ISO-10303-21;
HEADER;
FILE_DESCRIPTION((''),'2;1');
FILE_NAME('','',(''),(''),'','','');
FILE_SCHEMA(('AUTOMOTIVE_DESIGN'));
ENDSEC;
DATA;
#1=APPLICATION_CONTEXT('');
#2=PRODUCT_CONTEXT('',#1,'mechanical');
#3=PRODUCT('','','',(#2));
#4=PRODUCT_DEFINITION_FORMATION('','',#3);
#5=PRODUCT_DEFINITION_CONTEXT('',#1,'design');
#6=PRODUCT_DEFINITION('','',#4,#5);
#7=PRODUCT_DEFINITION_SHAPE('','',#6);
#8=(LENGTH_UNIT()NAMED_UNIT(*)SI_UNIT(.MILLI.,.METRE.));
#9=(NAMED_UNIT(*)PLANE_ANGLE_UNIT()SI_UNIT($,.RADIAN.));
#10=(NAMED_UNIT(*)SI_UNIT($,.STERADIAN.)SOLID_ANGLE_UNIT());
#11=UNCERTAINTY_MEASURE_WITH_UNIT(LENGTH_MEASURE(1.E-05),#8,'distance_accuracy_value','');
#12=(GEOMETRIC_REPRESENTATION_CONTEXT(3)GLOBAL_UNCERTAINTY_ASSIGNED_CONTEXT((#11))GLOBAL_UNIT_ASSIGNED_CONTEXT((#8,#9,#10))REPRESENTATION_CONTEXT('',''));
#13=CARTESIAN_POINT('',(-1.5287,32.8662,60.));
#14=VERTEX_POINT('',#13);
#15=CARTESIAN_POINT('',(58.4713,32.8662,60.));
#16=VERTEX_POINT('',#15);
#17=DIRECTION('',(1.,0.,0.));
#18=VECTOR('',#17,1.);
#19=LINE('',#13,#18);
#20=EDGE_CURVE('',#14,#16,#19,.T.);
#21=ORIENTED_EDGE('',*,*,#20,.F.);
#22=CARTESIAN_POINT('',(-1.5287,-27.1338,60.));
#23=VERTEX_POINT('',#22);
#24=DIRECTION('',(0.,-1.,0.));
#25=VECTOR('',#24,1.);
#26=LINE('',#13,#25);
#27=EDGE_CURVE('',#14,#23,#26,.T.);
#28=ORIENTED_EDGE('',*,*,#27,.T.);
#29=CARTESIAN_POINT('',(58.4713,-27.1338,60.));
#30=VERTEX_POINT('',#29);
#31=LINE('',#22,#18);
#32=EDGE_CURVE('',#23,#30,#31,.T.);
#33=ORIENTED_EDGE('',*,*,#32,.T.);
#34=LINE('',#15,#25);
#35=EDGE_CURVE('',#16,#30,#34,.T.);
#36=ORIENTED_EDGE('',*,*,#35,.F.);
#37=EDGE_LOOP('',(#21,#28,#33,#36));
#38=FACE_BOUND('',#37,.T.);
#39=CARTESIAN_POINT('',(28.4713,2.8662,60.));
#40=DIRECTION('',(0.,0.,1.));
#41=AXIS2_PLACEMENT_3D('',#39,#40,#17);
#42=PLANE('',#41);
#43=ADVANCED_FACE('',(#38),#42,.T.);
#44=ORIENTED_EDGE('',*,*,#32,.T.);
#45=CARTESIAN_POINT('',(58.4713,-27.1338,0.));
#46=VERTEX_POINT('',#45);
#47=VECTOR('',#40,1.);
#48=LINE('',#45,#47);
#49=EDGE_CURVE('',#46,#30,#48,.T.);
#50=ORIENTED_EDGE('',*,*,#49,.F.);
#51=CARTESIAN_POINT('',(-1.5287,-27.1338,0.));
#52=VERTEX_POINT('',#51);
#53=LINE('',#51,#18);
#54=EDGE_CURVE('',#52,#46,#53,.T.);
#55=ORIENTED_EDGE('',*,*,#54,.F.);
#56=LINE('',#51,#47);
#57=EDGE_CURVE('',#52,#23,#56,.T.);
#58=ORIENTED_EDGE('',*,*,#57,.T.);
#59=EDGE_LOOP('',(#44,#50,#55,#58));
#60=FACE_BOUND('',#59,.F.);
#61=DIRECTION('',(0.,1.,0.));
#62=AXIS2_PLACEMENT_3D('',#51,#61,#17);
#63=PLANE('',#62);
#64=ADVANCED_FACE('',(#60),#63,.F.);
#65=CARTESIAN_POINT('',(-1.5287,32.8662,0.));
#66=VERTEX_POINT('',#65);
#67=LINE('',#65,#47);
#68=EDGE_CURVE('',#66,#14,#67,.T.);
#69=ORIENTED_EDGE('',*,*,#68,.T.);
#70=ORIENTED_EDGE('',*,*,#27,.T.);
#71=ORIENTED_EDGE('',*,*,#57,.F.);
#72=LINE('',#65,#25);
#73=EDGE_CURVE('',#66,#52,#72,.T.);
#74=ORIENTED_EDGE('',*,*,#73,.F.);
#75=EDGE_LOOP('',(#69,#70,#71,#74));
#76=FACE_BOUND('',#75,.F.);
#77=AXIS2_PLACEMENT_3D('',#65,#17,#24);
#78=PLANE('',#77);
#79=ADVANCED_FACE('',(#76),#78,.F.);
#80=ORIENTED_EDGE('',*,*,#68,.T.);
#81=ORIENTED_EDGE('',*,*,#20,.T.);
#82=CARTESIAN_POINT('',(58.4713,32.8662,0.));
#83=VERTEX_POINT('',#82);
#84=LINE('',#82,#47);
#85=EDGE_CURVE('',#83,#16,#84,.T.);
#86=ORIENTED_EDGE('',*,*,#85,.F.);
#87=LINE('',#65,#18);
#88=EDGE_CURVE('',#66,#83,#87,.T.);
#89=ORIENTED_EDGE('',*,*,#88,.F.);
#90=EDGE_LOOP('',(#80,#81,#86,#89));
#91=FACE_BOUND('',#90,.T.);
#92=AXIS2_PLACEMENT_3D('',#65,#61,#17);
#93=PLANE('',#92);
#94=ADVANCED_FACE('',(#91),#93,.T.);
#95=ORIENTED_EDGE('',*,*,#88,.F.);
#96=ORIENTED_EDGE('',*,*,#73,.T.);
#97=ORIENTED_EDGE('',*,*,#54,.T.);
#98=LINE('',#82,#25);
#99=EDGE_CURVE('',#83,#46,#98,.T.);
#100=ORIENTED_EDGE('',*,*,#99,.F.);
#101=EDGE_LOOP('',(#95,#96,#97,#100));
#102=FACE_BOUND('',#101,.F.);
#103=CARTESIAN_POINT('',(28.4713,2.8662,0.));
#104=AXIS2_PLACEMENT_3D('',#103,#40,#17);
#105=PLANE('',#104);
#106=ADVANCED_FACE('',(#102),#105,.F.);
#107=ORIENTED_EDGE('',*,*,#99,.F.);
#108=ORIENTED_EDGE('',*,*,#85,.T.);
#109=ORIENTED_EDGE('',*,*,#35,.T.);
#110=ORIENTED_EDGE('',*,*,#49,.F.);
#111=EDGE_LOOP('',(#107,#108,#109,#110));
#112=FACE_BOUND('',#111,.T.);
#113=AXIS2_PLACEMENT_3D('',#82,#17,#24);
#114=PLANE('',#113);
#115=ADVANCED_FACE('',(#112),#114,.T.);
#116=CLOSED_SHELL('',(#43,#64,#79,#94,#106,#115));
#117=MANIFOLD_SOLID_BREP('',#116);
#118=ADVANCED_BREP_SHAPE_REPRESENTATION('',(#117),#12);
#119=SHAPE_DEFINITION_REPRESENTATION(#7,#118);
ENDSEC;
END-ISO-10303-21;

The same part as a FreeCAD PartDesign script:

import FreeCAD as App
import Part
import Sketcher
from FreeCAD import Vector


def add_polygon(sketch, points):
    """Adds a closed chain of lines whose ends are joined by coincident constraints."""
    first, n = sketch.GeometryCount, len(points)
    for a, b in zip(points, points[1:] + points[:1]):
        sketch.addGeometry(Part.LineSegment(App.Vector(*a, 0), App.Vector(*b, 0)), False)
    for i in range(n):
        sketch.addConstraint(Sketcher.Constraint("Coincident", first + i, 2, first + (i + 1) % n, 1))

doc = App.newDocument("Part")
params = doc.addObject("Spreadsheet::Sheet", "Params")
for row, (alias, value) in enumerate([
    ("sketch1_width", "60 mm"),
    ("pad1_length", "60 mm"),
], start=1):
    params.set(f"A{row}", alias)
    params.set(f"B{row}", "=" + value)
    params.setAlias(f"B{row}", alias)

body = doc.addObject("PartDesign::Body", "Body")

sketch1 = body.newObject("Sketcher::SketchObject", "Sketch")
sketch1.AttachmentSupport = (doc.getObject("XY_Plane"), [""])
sketch1.MapMode = "FlatFace"
add_polygon(sketch1, [(58.4713, 32.8662), (-1.5287, 32.8662), (-1.5287, -27.1338), (58.4713, -27.1338)])
sketch1.addConstraint([
    Sketcher.Constraint("Horizontal", 0),
    Sketcher.Constraint("Vertical", 1),
    Sketcher.Constraint("Horizontal", 2),
    Sketcher.Constraint("Vertical", 3),
    Sketcher.Constraint("Equal", 2, 1),
    Sketcher.Constraint("DistanceX", 0, 2, 0, 1, 60.0),
    Sketcher.Constraint("DistanceX", 0, 2, -1, 1, 1.5287),
    Sketcher.Constraint("DistanceY", -1, 1, 0, 2, 32.8662),
])
sketch1.setExpression("Constraints[9]", "Params.sketch1_width")
pad1 = body.newObject("PartDesign::Pad", "Pad")
pad1.Profile = sketch1
pad1.setExpression("Length", "Params.pad1_length")

doc.recompute()
